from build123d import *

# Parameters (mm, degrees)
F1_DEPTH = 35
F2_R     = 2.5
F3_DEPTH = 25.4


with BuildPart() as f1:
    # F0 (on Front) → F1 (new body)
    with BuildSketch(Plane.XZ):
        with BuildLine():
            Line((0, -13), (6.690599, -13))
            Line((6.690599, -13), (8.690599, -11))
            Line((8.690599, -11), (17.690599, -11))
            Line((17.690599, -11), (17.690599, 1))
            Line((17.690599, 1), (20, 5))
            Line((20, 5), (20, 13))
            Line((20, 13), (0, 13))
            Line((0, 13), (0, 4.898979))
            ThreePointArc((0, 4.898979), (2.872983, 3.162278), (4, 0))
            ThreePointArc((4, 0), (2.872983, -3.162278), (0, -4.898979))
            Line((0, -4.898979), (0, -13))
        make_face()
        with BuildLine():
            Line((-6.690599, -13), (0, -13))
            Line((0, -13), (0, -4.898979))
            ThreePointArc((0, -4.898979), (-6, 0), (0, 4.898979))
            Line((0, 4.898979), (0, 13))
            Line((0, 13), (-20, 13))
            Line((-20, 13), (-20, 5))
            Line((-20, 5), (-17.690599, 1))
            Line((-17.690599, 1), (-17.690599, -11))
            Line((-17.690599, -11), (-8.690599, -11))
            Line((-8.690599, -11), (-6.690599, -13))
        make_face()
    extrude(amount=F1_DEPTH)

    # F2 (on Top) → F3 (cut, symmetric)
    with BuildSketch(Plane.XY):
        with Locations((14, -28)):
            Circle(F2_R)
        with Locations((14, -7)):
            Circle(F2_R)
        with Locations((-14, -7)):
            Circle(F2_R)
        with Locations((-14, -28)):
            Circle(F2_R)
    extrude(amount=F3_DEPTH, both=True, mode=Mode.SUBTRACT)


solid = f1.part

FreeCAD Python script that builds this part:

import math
import FreeCAD as App
import Part
import Sketcher
from FreeCAD import Vector
Q = App.Units.Quantity


def add_polygon(sketch, points):
    """Adds a closed chain of lines whose ends are joined by coincident constraints."""
    first, n = sketch.GeometryCount, len(points)
    for a, b in zip(points, points[1:] + points[:1]):
        sketch.addGeometry(Part.LineSegment(App.Vector(*a, 0), App.Vector(*b, 0)), False)
    for i in range(n):
        sketch.addConstraint(Sketcher.Constraint("Coincident", first + i, 2, first + (i + 1) % n, 1))

doc = App.newDocument("Part")
body = doc.addObject("PartDesign::Body", "Body")

# Sketch on XZ plane
sketch1 = body.newObject("Sketcher::SketchObject", "Sketch")
sketch1.AttachmentSupport = (doc.getObject("XZ_Plane"), [""])
sketch1.MapMode = "FlatFace"
add_polygon(sketch1, [(6.7, -13), (8.7, -11), (17.7, -11), (17.7, 1), (20, 5), (20, 13), (-20, 13), (-20, 5), (-17.7, 1), (-17.7, -11), (-8.7, -11), (-6.7, -13)])  # lines 0-11
sketch1.addGeometry(Part.ArcOfCircle(Part.Circle(Vector(-1, 0, 0), Vector(0, 0, 1), 5), math.radians(0), math.radians(78)), False)  # 12
sketch1.addGeometry(Part.ArcOfCircle(Part.Circle(Vector(-1, 0, 0), Vector(0, 0, 1), 5), math.radians(-78), math.radians(0)), False)  # 13
sketch1.addGeometry(Part.ArcOfCircle(Part.Circle(Vector(-1, 0, 0), Vector(0, 0, 1), 5), math.radians(78), math.radians(282)), False)  # 14
sketch1.addConstraint([
    Sketcher.Constraint("Tangent", 12, 1, 13, 2),
    Sketcher.Constraint("Tangent", 13, 1, 14, 2),
    Sketcher.Constraint("Tangent", 14, 1, 12, 2),
    Sketcher.Constraint("Horizontal", 1),
    Sketcher.Constraint("Vertical", 2),
    Sketcher.Constraint("Vertical", 4),
    Sketcher.Constraint("Horizontal", 5),
    Sketcher.Constraint("Vertical", 6),
    Sketcher.Constraint("Vertical", 8),
    Sketcher.Constraint("Horizontal", 9),
    Sketcher.Constraint("Horizontal", 11),
    Sketcher.Constraint("Symmetric", 13, 1, 14, 1, -1, 1),
    Sketcher.Constraint("Symmetric", 3, 2, 6, 2, -2),
    Sketcher.Constraint("Symmetric", 2, 2, 7, 2, -2),
    Sketcher.Constraint("Symmetric", 0, 2, 9, 2, -2),
    Sketcher.Constraint("PointOnObject", 12, 3, -1),
    Sketcher.Constraint("PointOnObject", 12, 1, -1),
    Sketcher.Constraint("Perpendicular", 0, 10),
    Sketcher.Constraint("Equal", 0, 10),
    Sketcher.Constraint("Radius", 12, 4.999999),
    Sketcher.Constraint("DistanceX", 1, 1, 1, 2, 9.0),
    Sketcher.Constraint("DistanceX", 5, 2, 5, 1, 40.0),
    Sketcher.Constraint("DistanceY", 2, 1, 2, 2, 12.0),
    Sketcher.Constraint("DistanceY", 4, 1, 4, 2, 8.0),
    Sketcher.Constraint("Angle", 3, Q("60.000001 deg")),
    Sketcher.Constraint("DistanceX", 12, 3, -1, 1, 0.999999),
    Sketcher.Constraint("DistanceY", 0, 2, -1, 1, 11.0),
    Sketcher.Constraint("DistanceY", -1, 1, 3, 2, 5.0),
    Sketcher.Constraint("DistanceY", 10, 2, -1, 1, 13.0),
])
pad1 = body.newObject("PartDesign::Pad", "Pad")
pad1.Profile = sketch1
pad1.Length = 35

# Sketch on XY plane
sketch2 = body.newObject("Sketcher::SketchObject", "Sketch001")
sketch2.AttachmentSupport = (doc.getObject("XY_Plane"), [""])
sketch2.MapMode = "FlatFace"
sketch2.addGeometry([
    Part.Circle(Vector(14, -28, 0), Vector(0, 0, 1), 2.5),
    Part.Circle(Vector(14, -7, 0), Vector(0, 0, 1), 2.5),
    Part.Circle(Vector(-14, -7, 0), Vector(0, 0, 1), 2.5),
    Part.Circle(Vector(-14, -28, 0), Vector(0, 0, 1), 2.5),
], False)
sketch2.addConstraint([
    Sketcher.Constraint("Equal", 0, 1),
    Sketcher.Constraint("Equal", 1, 2),
    Sketcher.Constraint("Equal", 2, 3),
    Sketcher.Constraint("Symmetric", 1, 3, 2, 3, -2),
    Sketcher.Constraint("Symmetric", 0, 3, 3, 3, -2),
    Sketcher.Constraint("Vertical", 0, 3, 1, 3),
    Sketcher.Constraint("Diameter", 0, 5.0),
    Sketcher.Constraint("DistanceX", -1, 1, 0, 3, 14.0),
    Sketcher.Constraint("DistanceY", 0, 3, -1, 1, 28.0),
    Sketcher.Constraint("DistanceY", 1, 3, -1, 1, 7.0),
])
pocket1 = body.newObject("PartDesign::Pocket", "Pocket")
pocket1.Profile = sketch2
pocket1.Length = 50.8
pocket1.Midplane = True

doc.recompute()
